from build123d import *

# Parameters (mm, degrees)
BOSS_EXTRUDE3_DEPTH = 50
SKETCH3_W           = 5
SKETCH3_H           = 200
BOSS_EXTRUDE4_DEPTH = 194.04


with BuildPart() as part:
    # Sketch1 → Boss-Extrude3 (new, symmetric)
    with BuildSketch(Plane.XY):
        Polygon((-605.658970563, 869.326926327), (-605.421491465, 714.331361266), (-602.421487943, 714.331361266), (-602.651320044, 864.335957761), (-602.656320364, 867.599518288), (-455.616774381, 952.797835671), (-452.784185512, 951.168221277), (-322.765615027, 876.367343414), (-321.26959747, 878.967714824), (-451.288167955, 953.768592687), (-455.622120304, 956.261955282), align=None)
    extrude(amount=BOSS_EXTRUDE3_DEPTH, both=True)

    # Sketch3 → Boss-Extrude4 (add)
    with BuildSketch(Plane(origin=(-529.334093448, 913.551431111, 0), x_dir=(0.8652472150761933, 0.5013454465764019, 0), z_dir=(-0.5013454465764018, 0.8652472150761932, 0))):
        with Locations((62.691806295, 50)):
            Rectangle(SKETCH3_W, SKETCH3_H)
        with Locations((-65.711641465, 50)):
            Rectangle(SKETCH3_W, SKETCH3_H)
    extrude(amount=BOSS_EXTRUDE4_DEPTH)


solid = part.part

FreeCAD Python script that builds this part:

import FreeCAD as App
import Part
import Sketcher
Q = App.Units.Quantity


def add_polygon(sketch, points):
    """Adds a closed chain of lines whose ends are joined by coincident constraints."""
    first, n = sketch.GeometryCount, len(points)
    for a, b in zip(points, points[1:] + points[:1]):
        sketch.addGeometry(Part.LineSegment(App.Vector(*a, 0), App.Vector(*b, 0)), False)
    for i in range(n):
        sketch.addConstraint(Sketcher.Constraint("Coincident", first + i, 2, first + (i + 1) % n, 1))

doc = App.newDocument("Part")
body = doc.addObject("PartDesign::Body", "Body")

sketch1 = body.newObject("Sketcher::SketchObject", "Sketch")
sketch1.AttachmentSupport = (doc.getObject("XY_Plane"), [""])
sketch1.MapMode = "FlatFace"
add_polygon(sketch1, [(-605.658971, 869.326926), (-605.421491, 714.331361), (-602.421488, 714.331361), (-602.65132, 864.335958), (-602.65632, 867.599518), (-455.616774, 952.797836), (-452.784186, 951.168221), (-322.765615, 876.367343), (-321.269597, 878.967715), (-451.288168, 953.768593), (-455.62212, 956.261955)])
sketch1.addConstraint(Sketcher.Constraint("Horizontal", 1))
sketch1.addConstraint(Sketcher.Constraint("Parallel", 0, 2))
sketch1.addConstraint(Sketcher.Constraint("Parallel", 2, 3))
sketch1.addConstraint(Sketcher.Constraint("Parallel", 5, 6))
sketch1.addConstraint(Sketcher.Constraint("Perpendicular", 6, 7))
sketch1.addConstraint(Sketcher.Constraint("Perpendicular", 7, 8))
sketch1.addConstraint(Sketcher.Constraint("Parallel", 8, 9))
sketch1.addConstraint(Sketcher.Constraint("Parallel", 4, 10))
sketch1.addConstraint(Sketcher.Constraint("Equal", 6, 8))
sketch1.addConstraint(Sketcher.Constraint("Distance", 6, Q("150 mm")))
sketch1.addConstraint(Sketcher.Constraint("Distance", 7, Q("3 mm")))
sketch1.addConstraint(Sketcher.Constraint("Distance", 9, Q("5 mm")))
sketch1.addConstraint(Sketcher.Constraint("DistanceX", 3, 2, 2, 2, Q("0.005 mm")))
sketch1.addConstraint(Sketcher.Constraint("DistanceX", 1, 1, 1, 2, Q("3.000004 mm")))
sketch1.addConstraint(Sketcher.Constraint("DistanceX", 0, 2, -1, 1, Q("605.421491 mm")))
sketch1.addConstraint(Sketcher.Constraint("DistanceY", -1, 1, 0, 2, Q("714.331361 mm")))
sketch1.addConstraint(Sketcher.Constraint("DistanceX", 2, 2, -1, 1, Q("602.65132 mm")))
sketch1.addConstraint(Sketcher.Constraint("DistanceY", -1, 1, 3, 2, Q("867.599518 mm")))
sketch1.addConstraint(Sketcher.Constraint("DistanceY", -1, 1, 5, 2, Q("951.168221 mm")))
sketch1.addConstraint(Sketcher.Constraint("DistanceX", 9, 2, -1, 1, Q("455.62212 mm")))
sketch1.addConstraint(Sketcher.Constraint("DistanceX", 4, 2, 5, 2, Q("2.832589 mm")))
sketch1.addConstraint(Sketcher.Constraint("DistanceX", 5, 2, 6, 2, Q("130.01857 mm")))
pad1 = body.newObject("PartDesign::Pad", "Pad")
pad1.Profile = sketch1
pad1.Length = 100
pad1.Midplane = True

sketch2 = body.newObject("Sketcher::SketchObject", "Sketch001")
sketch2.Placement = App.Placement(App.Vector(-529.334093, 913.551431, 0), App.Rotation(App.Vector(0.865247215, 0.501345447, 0), App.Vector(0, 0, -1), App.Vector(-0.501345447, 0.865247215, 0), "ZXY"))
add_polygon(sketch2, [(60, 150), (60, -50), (65, -50), (65, 150)])
add_polygon(sketch2, [(-68, 150), (-68, -50), (-63, -50), (-63, 150)])
sketch2.addConstraint(Sketcher.Constraint("Vertical", 0))
sketch2.addConstraint(Sketcher.Constraint("Horizontal", 1))
sketch2.addConstraint(Sketcher.Constraint("Vertical", 2))
sketch2.addConstraint(Sketcher.Constraint("Horizontal", 3))
sketch2.addConstraint(Sketcher.Constraint("Vertical", 4))
sketch2.addConstraint(Sketcher.Constraint("Horizontal", 5))
sketch2.addConstraint(Sketcher.Constraint("Vertical", 6))
sketch2.addConstraint(Sketcher.Constraint("Horizontal", 7))
sketch2.addConstraint(Sketcher.Constraint("Horizontal", 1, 2, 4, 2))
sketch2.addConstraint(Sketcher.Constraint("Horizontal", 3, 2, 6, 2))
sketch2.addConstraint(Sketcher.Constraint("Equal", 3, 5))
sketch2.addConstraint(Sketcher.Constraint("DistanceX", 1, 1, 1, 2, Q("5 mm")))
sketch2.addConstraint(Sketcher.Constraint("DistanceY", 0, 2, 0, 1, Q("200 mm")))
sketch2.addConstraint(Sketcher.Constraint("DistanceY", 0, 2, -1, 1, Q("50 mm")))
sketch2.addConstraint(Sketcher.Constraint("DistanceX", 4, 2, -1, 1, Q("68.211641 mm")))
sketch2.addConstraint(Sketcher.Constraint("DistanceX", -1, 1, 0, 2, Q("60.191806 mm")))
pad2 = body.newObject("PartDesign::Pad", "Pad001")
pad2.Profile = sketch2
pad2.Length = 194.04

doc.recompute()
